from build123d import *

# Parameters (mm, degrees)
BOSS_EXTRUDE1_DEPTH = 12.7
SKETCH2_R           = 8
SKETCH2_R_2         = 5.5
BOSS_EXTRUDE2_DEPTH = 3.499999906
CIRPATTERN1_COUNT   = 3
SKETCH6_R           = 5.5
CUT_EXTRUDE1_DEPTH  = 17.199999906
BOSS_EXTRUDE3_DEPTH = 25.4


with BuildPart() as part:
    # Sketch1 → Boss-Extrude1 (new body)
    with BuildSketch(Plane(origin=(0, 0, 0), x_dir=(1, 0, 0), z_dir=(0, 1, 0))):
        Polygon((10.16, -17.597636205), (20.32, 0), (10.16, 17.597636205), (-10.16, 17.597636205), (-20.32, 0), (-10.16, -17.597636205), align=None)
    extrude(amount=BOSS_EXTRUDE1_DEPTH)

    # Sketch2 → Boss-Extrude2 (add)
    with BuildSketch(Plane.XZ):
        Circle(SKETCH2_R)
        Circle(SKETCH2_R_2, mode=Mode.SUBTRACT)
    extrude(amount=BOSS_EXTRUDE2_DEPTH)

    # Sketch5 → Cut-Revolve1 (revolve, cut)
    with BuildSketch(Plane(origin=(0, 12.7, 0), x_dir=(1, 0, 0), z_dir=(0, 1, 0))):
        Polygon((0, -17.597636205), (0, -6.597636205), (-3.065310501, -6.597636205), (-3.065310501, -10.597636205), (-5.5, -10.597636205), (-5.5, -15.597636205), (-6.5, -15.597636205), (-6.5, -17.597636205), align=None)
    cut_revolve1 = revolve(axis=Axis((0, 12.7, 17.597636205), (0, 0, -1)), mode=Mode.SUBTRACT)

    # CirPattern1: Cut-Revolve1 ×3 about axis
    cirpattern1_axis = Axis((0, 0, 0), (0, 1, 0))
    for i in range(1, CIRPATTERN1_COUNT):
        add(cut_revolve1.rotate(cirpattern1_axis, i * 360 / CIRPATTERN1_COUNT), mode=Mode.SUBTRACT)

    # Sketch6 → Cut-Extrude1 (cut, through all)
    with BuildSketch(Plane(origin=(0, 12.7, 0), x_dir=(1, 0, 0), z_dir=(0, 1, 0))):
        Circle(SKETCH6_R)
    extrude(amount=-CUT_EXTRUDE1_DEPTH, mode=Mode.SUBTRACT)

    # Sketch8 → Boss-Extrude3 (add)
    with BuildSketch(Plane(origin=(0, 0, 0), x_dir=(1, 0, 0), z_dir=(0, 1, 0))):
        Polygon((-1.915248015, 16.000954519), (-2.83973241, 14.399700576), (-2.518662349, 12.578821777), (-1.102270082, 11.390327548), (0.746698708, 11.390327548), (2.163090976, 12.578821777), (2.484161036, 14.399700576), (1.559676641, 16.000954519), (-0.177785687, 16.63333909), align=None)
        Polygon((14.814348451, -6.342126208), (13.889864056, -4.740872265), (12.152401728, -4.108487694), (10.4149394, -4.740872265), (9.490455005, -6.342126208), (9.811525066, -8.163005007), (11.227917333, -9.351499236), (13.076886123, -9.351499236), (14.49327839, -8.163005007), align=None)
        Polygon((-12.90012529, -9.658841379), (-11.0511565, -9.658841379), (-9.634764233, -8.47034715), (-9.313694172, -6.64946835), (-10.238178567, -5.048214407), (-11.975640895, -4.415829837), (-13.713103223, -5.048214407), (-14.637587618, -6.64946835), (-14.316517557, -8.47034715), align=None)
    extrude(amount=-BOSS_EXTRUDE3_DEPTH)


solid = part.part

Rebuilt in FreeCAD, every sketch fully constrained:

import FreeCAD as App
import Part
import Sketcher
Q = App.Units.Quantity

doc = App.newDocument("Part")
params = doc.addObject("Spreadsheet::Sheet", "Params")
for row, (alias, value) in enumerate([
    ("sketch1_width", "20.32 mm"),
    ("sketch1_length", "20.32 mm"),
    ("pad1_length", "12.7 mm"),
    ("sketch2_diameter", "16 mm"),
    ("sketch2_diameter2", "11 mm"),
    ("pad2_length", "3.5 mm"),
    ("sketch3_width", "1 mm"),
    ("sketch3_height", "11 mm"),
    ("sketch3_height2", "4 mm"),
    ("sketch3_height3", "5 mm"),
    ("sketch3_width2", "6.5 mm"),
    ("groove_angle", "360 deg"),
    ("sketch4_diameter", "11 mm"),
    ("pad3_length", "25.4 mm"),
], start=1):
    params.set(f"A{row}", alias)
    params.set(f"B{row}", "=" + value)
    params.setAlias(f"B{row}", alias)

body = doc.addObject("PartDesign::Body", "Body")

# Sketch on XZ plane
sketch1 = body.newObject("Sketcher::SketchObject", "Sketch")
sketch1.AttachmentSupport = (doc.getObject("XZ_Plane"), [""])
sketch1.MapMode = "FlatFace"
sketch1.addGeometry([
    Part.LineSegment(App.Vector(10.16, 17.597636, 0), App.Vector(20.32, 0, 0)),  # 0
    Part.LineSegment(App.Vector(20.32, 0, 0), App.Vector(10.16, -17.597636, 0)),  # 1
    Part.LineSegment(App.Vector(10.16, -17.597636, 0), App.Vector(-10.16, -17.597636, 0)),  # 2
    Part.LineSegment(App.Vector(-10.16, -17.597636, 0), App.Vector(-20.32, 0, 0)),  # 3
    Part.LineSegment(App.Vector(-20.32, 0, 0), App.Vector(-10.16, 17.597636, 0)),  # 4
    Part.LineSegment(App.Vector(-10.16, 17.597636, 0), App.Vector(10.16, 17.597636, 0)),  # 5
], False)
sketch1.addConstraint([
    Sketcher.Constraint("Coincident", 0, 2, 1, 1),
    Sketcher.Constraint("Coincident", 1, 2, 2, 1),
    Sketcher.Constraint("Coincident", 2, 2, 3, 1),
    Sketcher.Constraint("Coincident", 3, 2, 4, 1),
    Sketcher.Constraint("Coincident", 4, 2, 5, 1),
    Sketcher.Constraint("Coincident", 5, 2, 0, 1),
    Sketcher.Constraint("Horizontal", 2),
    Sketcher.Constraint("Horizontal", 5),
    Sketcher.Constraint("Symmetric", 0, 2, 3, 2, -1, 1),
    Sketcher.Constraint("Symmetric", 1, 2, 4, 2, -1, 1),
    Sketcher.Constraint("PointOnObject", 0, 2, -1),
    Sketcher.Constraint("Parallel", 0, 3),
    Sketcher.Constraint("Vertical", 2, 2, 4, 2),
    Sketcher.Constraint("Angle", 0, Q("-60 deg")),
    Sketcher.Constraint("DistanceX", 2, 2, 2, 1, 20.32),
    Sketcher.Constraint("Distance", 0, 20.32),
])
sketch1.setExpression("Constraints[14]", "Params.sketch1_width")
sketch1.setExpression("Constraints[15]", "Params.sketch1_length")
pad1 = body.newObject("PartDesign::Pad", "Pad")
pad1.Profile = sketch1
pad1.setExpression("Length", "Params.pad1_length")
pad1.Reversed = True

# Sketch on XZ plane
sketch2 = body.newObject("Sketcher::SketchObject", "Sketch001")
sketch2.AttachmentSupport = (doc.getObject("XZ_Plane"), [""])
sketch2.MapMode = "FlatFace"
sketch2.addGeometry([
    Part.Circle(App.Vector(0, 0, 0), App.Vector(0, 0, 1), 8),
    Part.Circle(App.Vector(0, 0, 0), App.Vector(0, 0, 1), 5.5),
], False)
sketch2.addConstraint([
    Sketcher.Constraint("Coincident", 0, 3, -1, 1),
    Sketcher.Constraint("Coincident", 1, 3, -1, 1),
    Sketcher.Constraint("Diameter", 0, 16.0),
    Sketcher.Constraint("Diameter", 1, 11.0),
])
sketch2.setExpression("Constraints[2]", "Params.sketch2_diameter")
sketch2.setExpression("Constraints[3]", "Params.sketch2_diameter2")
pad2 = body.newObject("PartDesign::Pad", "Pad001")
pad2.Profile = sketch2
pad2.setExpression("Length", "Params.pad2_length")

# Sketch on XZ plane
sketch3 = body.newObject("Sketcher::SketchObject", "Sketch002")
sketch3.AttachmentSupport = (doc.getObject("XZ_Plane"), [""])
sketch3.MapMode = "FlatFace"
sketch3.AttachmentOffset = App.Placement(App.Vector(0, 0, -12.7), App.Rotation())
sketch3.addGeometry([
    Part.LineSegment(App.Vector(0, 17.597636, 0), App.Vector(0, 6.597636, 0)),  # 0
    Part.LineSegment(App.Vector(0, 6.597636, 0), App.Vector(-3.065311, 6.597636, 0)),  # 1
    Part.LineSegment(App.Vector(-3.065311, 6.597636, 0), App.Vector(-3.065311, 10.597636, 0)),  # 2
    Part.LineSegment(App.Vector(-3.065311, 10.597636, 0), App.Vector(-5.5, 10.597636, 0)),  # 3
    Part.LineSegment(App.Vector(-5.5, 10.597636, 0), App.Vector(-5.5, 15.597636, 0)),  # 4
    Part.LineSegment(App.Vector(-5.5, 15.597636, 0), App.Vector(-6.5, 15.597636, 0)),  # 5
    Part.LineSegment(App.Vector(-6.5, 15.597636, 0), App.Vector(-6.5, 17.597636, 0)),  # 6
    Part.LineSegment(App.Vector(-6.5, 17.597636, 0), App.Vector(0, 17.597636, 0)),  # 7
], False)
sketch3.addConstraint([
    Sketcher.Constraint("Coincident", 0, 2, 1, 1),
    Sketcher.Constraint("Coincident", 1, 2, 2, 1),
    Sketcher.Constraint("Coincident", 2, 2, 3, 1),
    Sketcher.Constraint("Coincident", 3, 2, 4, 1),
    Sketcher.Constraint("Coincident", 4, 2, 5, 1),
    Sketcher.Constraint("Coincident", 5, 2, 6, 1),
    Sketcher.Constraint("Coincident", 6, 2, 7, 1),
    Sketcher.Constraint("Coincident", 7, 2, 0, 1),
    Sketcher.Constraint("Vertical", 0),
    Sketcher.Constraint("Horizontal", 1),
    Sketcher.Constraint("Vertical", 2),
    Sketcher.Constraint("Horizontal", 3),
    Sketcher.Constraint("Vertical", 4),
    Sketcher.Constraint("Horizontal", 5),
    Sketcher.Constraint("Vertical", 6),
    Sketcher.Constraint("Horizontal", 7),
    Sketcher.Constraint("PointOnObject", 0, 2, -2),
    Sketcher.Constraint("DistanceX", 5, 2, 5, 1, 1.0),
    Sketcher.Constraint("DistanceY", 0, 2, 0, 1, 11.0),
    Sketcher.Constraint("DistanceY", 2, 1, 2, 2, 4.0),
    Sketcher.Constraint("DistanceY", 4, 1, 4, 2, 5.0),
    Sketcher.Constraint("DistanceX", 7, 1, 7, 2, 6.5),
    Sketcher.Constraint("DistanceX", 1, 2, 1, 1, 3.065311),
    Sketcher.Constraint("DistanceY", -1, 1, 0, 2, 6.597636),
])
sketch3.setExpression("Constraints[17]", "Params.sketch3_width")
sketch3.setExpression("Constraints[18]", "Params.sketch3_height")
sketch3.setExpression("Constraints[19]", "Params.sketch3_height2")
sketch3.setExpression("Constraints[20]", "Params.sketch3_height3")
sketch3.setExpression("Constraints[21]", "Params.sketch3_width2")
groove = body.newObject("PartDesign::Groove", "Groove")
groove.Profile = sketch3
groove.ReferenceAxis = (sketch3, ["V_Axis"])
groove.setExpression("Angle", "Params.groove_angle")
doc.recompute()

polarpattern = body.newObject("PartDesign::PolarPattern", "PolarPattern")
polarpattern.Originals = [groove]
polarpattern.Axis = (doc.getObject("Y_Axis"), [""])
polarpattern.Angle = 360
polarpattern.Occurrences = 3
body.Tip = polarpattern

# Sketch on XZ plane
sketch4 = body.newObject("Sketcher::SketchObject", "Sketch003")
sketch4.AttachmentSupport = (doc.getObject("XZ_Plane"), [""])
sketch4.MapMode = "FlatFace"
sketch4.AttachmentOffset = App.Placement(App.Vector(0, 0, -12.7), App.Rotation())
sketch4.addGeometry(Part.Circle(App.Vector(0, 0, 0), App.Vector(0, 0, 1), 5.5), False)
sketch4.addConstraint([
    Sketcher.Constraint("Coincident", 0, 3, -1, 1),
    Sketcher.Constraint("Diameter", 0, 11.0),
])
sketch4.setExpression("Constraints[1]", "Params.sketch4_diameter")
pocket1 = body.newObject("PartDesign::Pocket", "Pocket")
pocket1.Profile = sketch4
pocket1.Type = "ThroughAll"
pocket1.Reversed = True

# Sketch on XZ plane
sketch5 = body.newObject("Sketcher::SketchObject", "Sketch004")
sketch5.AttachmentSupport = (doc.getObject("XZ_Plane"), [""])
sketch5.MapMode = "FlatFace"
sketch5.addGeometry([
    Part.LineSegment(App.Vector(-1.915248, -16.000955, 0), App.Vector(-2.839732, -14.399701, 0)),  # 0
    Part.LineSegment(App.Vector(-2.839732, -14.399701, 0), App.Vector(-2.518662, -12.578822, 0)),  # 1
    Part.LineSegment(App.Vector(-2.518662, -12.578822, 0), App.Vector(-1.10227, -11.390328, 0)),  # 2
    Part.LineSegment(App.Vector(-1.10227, -11.390328, 0), App.Vector(0.746699, -11.390328, 0)),  # 3
    Part.LineSegment(App.Vector(0.746699, -11.390328, 0), App.Vector(2.163091, -12.578822, 0)),  # 4
    Part.LineSegment(App.Vector(2.163091, -12.578822, 0), App.Vector(2.484161, -14.399701, 0)),  # 5
    Part.LineSegment(App.Vector(2.484161, -14.399701, 0), App.Vector(1.559677, -16.000955, 0)),  # 6
    Part.LineSegment(App.Vector(1.559677, -16.000955, 0), App.Vector(-0.177786, -16.633339, 0)),  # 7
    Part.LineSegment(App.Vector(-0.177786, -16.633339, 0), App.Vector(-1.915248, -16.000955, 0)),  # 8
    Part.LineSegment(App.Vector(14.814348, 6.342126, 0), App.Vector(13.889864, 4.740872, 0)),  # 9
    Part.LineSegment(App.Vector(13.889864, 4.740872, 0), App.Vector(12.152402, 4.108488, 0)),  # 10
    Part.LineSegment(App.Vector(12.152402, 4.108488, 0), App.Vector(10.414939, 4.740872, 0)),  # 11
    Part.LineSegment(App.Vector(10.414939, 4.740872, 0), App.Vector(9.490455, 6.342126, 0)),  # 12
    Part.LineSegment(App.Vector(9.490455, 6.342126, 0), App.Vector(9.811525, 8.163005, 0)),  # 13
    Part.LineSegment(App.Vector(9.811525, 8.163005, 0), App.Vector(11.227917, 9.351499, 0)),  # 14
    Part.LineSegment(App.Vector(11.227917, 9.351499, 0), App.Vector(13.076886, 9.351499, 0)),  # 15
    Part.LineSegment(App.Vector(13.076886, 9.351499, 0), App.Vector(14.493278, 8.163005, 0)),  # 16
    Part.LineSegment(App.Vector(14.493278, 8.163005, 0), App.Vector(14.814348, 6.342126, 0)),  # 17
    Part.LineSegment(App.Vector(-12.900125, 9.658841, 0), App.Vector(-11.051156, 9.658841, 0)),  # 18
    Part.LineSegment(App.Vector(-11.051156, 9.658841, 0), App.Vector(-9.634764, 8.470347, 0)),  # 19
    Part.LineSegment(App.Vector(-9.634764, 8.470347, 0), App.Vector(-9.313694, 6.649468, 0)),  # 20
    Part.LineSegment(App.Vector(-9.313694, 6.649468, 0), App.Vector(-10.238179, 5.048214, 0)),  # 21
    Part.LineSegment(App.Vector(-10.238179, 5.048214, 0), App.Vector(-11.975641, 4.41583, 0)),  # 22
    Part.LineSegment(App.Vector(-11.975641, 4.41583, 0), App.Vector(-13.713103, 5.048214, 0)),  # 23
    Part.LineSegment(App.Vector(-13.713103, 5.048214, 0), App.Vector(-14.637588, 6.649468, 0)),  # 24
    Part.LineSegment(App.Vector(-14.637588, 6.649468, 0), App.Vector(-14.316518, 8.470347, 0)),  # 25
    Part.LineSegment(App.Vector(-14.316518, 8.470347, 0), App.Vector(-12.900125, 9.658841, 0)),  # 26
], False)
sketch5.addConstraint([
    Sketcher.Constraint("Coincident", 0, 2, 1, 1),
    Sketcher.Constraint("Coincident", 1, 2, 2, 1),
    Sketcher.Constraint("Coincident", 2, 2, 3, 1),
    Sketcher.Constraint("Coincident", 3, 2, 4, 1),
    Sketcher.Constraint("Coincident", 4, 2, 5, 1),
    Sketcher.Constraint("Coincident", 5, 2, 6, 1),
    Sketcher.Constraint("Coincident", 6, 2, 7, 1),
    Sketcher.Constraint("Coincident", 7, 2, 8, 1),
    Sketcher.Constraint("Coincident", 8, 2, 0, 1),
    Sketcher.Constraint("Coincident", 9, 2, 10, 1),
    Sketcher.Constraint("Coincident", 10, 2, 11, 1),
    Sketcher.Constraint("Coincident", 11, 2, 12, 1),
    Sketcher.Constraint("Coincident", 12, 2, 13, 1),
    Sketcher.Constraint("Coincident", 13, 2, 14, 1),
    Sketcher.Constraint("Coincident", 14, 2, 15, 1),
    Sketcher.Constraint("Coincident", 15, 2, 16, 1),
    Sketcher.Constraint("Coincident", 16, 2, 17, 1),
    Sketcher.Constraint("Coincident", 17, 2, 9, 1),
    Sketcher.Constraint("Coincident", 18, 2, 19, 1),
    Sketcher.Constraint("Coincident", 19, 2, 20, 1),
    Sketcher.Constraint("Coincident", 20, 2, 21, 1),
    Sketcher.Constraint("Coincident", 21, 2, 22, 1),
    Sketcher.Constraint("Coincident", 22, 2, 23, 1),
    Sketcher.Constraint("Coincident", 23, 2, 24, 1),
    Sketcher.Constraint("Coincident", 24, 2, 25, 1),
    Sketcher.Constraint("Coincident", 25, 2, 26, 1),
    Sketcher.Constraint("Coincident", 26, 2, 18, 1),
    Sketcher.Constraint("Horizontal", 3),
    Sketcher.Constraint("Horizontal", 15),
    Sketcher.Constraint("Horizontal", 18),
    Sketcher.Constraint("Parallel", 6, 9),
    Sketcher.Constraint("Parallel", 7, 10),
    Sketcher.Constraint("Parallel", 8, 11),
    Sketcher.Constraint("Parallel", 0, 12),
    Sketcher.Constraint("Parallel", 1, 13),
    Sketcher.Constraint("Parallel", 2, 14),
    Sketcher.Constraint("Parallel", 4, 16),
    Sketcher.Constraint("Parallel", 5, 17),
    Sketcher.Constraint("Parallel", 16, 19),
    Sketcher.Constraint("Parallel", 17, 20),
    Sketcher.Constraint("Parallel", 9, 21),
    Sketcher.Constraint("Parallel", 10, 22),
    Sketcher.Constraint("Parallel", 11, 23),
    Sketcher.Constraint("Parallel", 12, 24),
    Sketcher.Constraint("Parallel", 13, 25),
    Sketcher.Constraint("Parallel", 14, 26),
    Sketcher.Constraint("Horizontal", 1, 2, 4, 2),
    Sketcher.Constraint("Horizontal", 0, 2, 5, 2),
    Sketcher.Constraint("Horizontal", 6, 2, 8, 2),
    Sketcher.Constraint("Horizontal", 9, 2, 11, 2),
    Sketcher.Constraint("Horizontal", 13, 2, 16, 2),
    Sketcher.Constraint("Horizontal", 12, 2, 17, 2),
    Sketcher.Constraint("Horizontal", 21, 2, 23, 2),
    Sketcher.Constraint("Horizontal", 20, 2, 24, 2),
    Sketcher.Constraint("Horizontal", 19, 2, 25, 2),
    Sketcher.Constraint("Equal", 3, 15),
    Sketcher.Constraint("Equal", 15, 18),
    Sketcher.Constraint("Equal", 0, 1),
    Sketcher.Constraint("Equal", 1, 2),
    Sketcher.Constraint("Equal", 2, 4),
    Sketcher.Constraint("Equal", 4, 5),
    Sketcher.Constraint("Equal", 5, 6),
    Sketcher.Constraint("Equal", 6, 7),
    Sketcher.Constraint("Equal", 7, 8),
    Sketcher.Constraint("Equal", 8, 9),
    Sketcher.Constraint("Equal", 9, 10),
    Sketcher.Constraint("Equal", 12, 13),
    Sketcher.Constraint("Equal", 17, 19),
    Sketcher.Constraint("Equal", 19, 20),
    Sketcher.Constraint("Equal", 20, 21),
    Sketcher.Constraint("Angle", 0, Q("120 deg")),
    Sketcher.Constraint("Angle", 1, Q("80 deg")),
    Sketcher.Constraint("Angle", 2, Q("40 deg")),
    Sketcher.Constraint("Angle", 7, Q("-160 deg")),
    Sketcher.Constraint("DistanceX", 3, 1, 3, 2, 1.848969),
    Sketcher.Constraint("DistanceY", 0, 2, -1, 1, 14.399701),
    Sketcher.Constraint("DistanceX", -1, 1, 3, 2, 0.746699),
    Sketcher.Constraint("DistanceX", -1, 1, 10, 2, 12.152402),
    Sketcher.Constraint("DistanceY", -1, 1, 14, 2, 9.351499),
    Sketcher.Constraint("DistanceY", -1, 1, 18, 2, 9.658841),
    Sketcher.Constraint("DistanceX", 21, 2, -1, 1, 10.238179),
])
pad3 = body.newObject("PartDesign::Pad", "Pad002")
pad3.Profile = sketch5
pad3.setExpression("Length", "Params.pad3_length")

doc.recompute()
